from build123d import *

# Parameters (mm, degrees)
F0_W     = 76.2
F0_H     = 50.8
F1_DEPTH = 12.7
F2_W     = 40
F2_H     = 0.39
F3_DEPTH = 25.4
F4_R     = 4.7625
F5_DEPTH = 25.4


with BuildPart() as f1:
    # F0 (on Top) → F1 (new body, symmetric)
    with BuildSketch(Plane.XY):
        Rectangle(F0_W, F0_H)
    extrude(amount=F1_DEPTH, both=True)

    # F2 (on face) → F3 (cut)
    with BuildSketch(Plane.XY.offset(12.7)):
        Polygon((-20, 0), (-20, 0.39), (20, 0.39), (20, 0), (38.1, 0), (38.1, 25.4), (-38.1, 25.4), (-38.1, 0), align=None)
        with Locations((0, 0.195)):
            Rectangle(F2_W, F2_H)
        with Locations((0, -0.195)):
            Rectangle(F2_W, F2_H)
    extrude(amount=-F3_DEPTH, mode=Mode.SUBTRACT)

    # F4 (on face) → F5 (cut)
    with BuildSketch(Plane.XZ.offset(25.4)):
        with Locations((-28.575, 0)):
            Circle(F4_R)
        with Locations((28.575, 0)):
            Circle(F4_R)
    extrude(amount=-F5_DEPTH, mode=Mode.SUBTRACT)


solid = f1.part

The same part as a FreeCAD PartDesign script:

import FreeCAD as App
import Part
import Sketcher
Q = App.Units.Quantity

doc = App.newDocument("Part")
body = doc.addObject("PartDesign::Body", "Body")

sketch1 = body.newObject("Sketcher::SketchObject", "Sketch")
sketch1.AttachmentSupport = (doc.getObject("XY_Plane"), [""])
sketch1.MapMode = "FlatFace"
sketch1.addGeometry([
    Part.LineSegment(App.Vector(-38, 25, 0), App.Vector(-38, -25, 0)),
    Part.LineSegment(App.Vector(-38, -25, 0), App.Vector(38, -25, 0)),
    Part.LineSegment(App.Vector(38, -25, 0), App.Vector(38, 25, 0)),
    Part.LineSegment(App.Vector(38, 25, 0), App.Vector(-38, 25, 0)),
], False)
sketch1.addConstraint([
    Sketcher.Constraint("Coincident", 0, 2, 1, 1),
    Sketcher.Constraint("Coincident", 1, 2, 2, 1),
    Sketcher.Constraint("Coincident", 2, 2, 3, 1),
    Sketcher.Constraint("Coincident", 3, 2, 0, 1),
    Sketcher.Constraint("Vertical", 0),
    Sketcher.Constraint("Horizontal", 1),
    Sketcher.Constraint("Vertical", 2),
    Sketcher.Constraint("Horizontal", 3),
    Sketcher.Constraint("Symmetric", 0, 2, 2, 2, -1, 1),
    Sketcher.Constraint("DistanceX", 1, 1, 1, 2, Q("3 in")),
    Sketcher.Constraint("DistanceY", 0, 2, 0, 1, Q("2 in")),
])
pad1 = body.newObject("PartDesign::Pad", "Pad")
pad1.Profile = sketch1
pad1.Length = Q("1 in")
pad1.Midplane = True

sketch2 = body.newObject("Sketcher::SketchObject", "Sketch001")
sketch2.AttachmentSupport = (doc.getObject("XY_Plane"), [""])
sketch2.MapMode = "FlatFace"
sketch2.AttachmentOffset = App.Placement(App.Vector(0, 0, 0.5 * 25.4), App.Rotation())
sketch2.addGeometry([
    Part.LineSegment(App.Vector(38.1, 0, 0), App.Vector(38.1, 25.4, 0)),
    Part.LineSegment(App.Vector(38.1, 25.4, 0), App.Vector(-38.1, 25.4, 0)),
    Part.LineSegment(App.Vector(-38.1, 25.4, 0), App.Vector(-38.1, 0, 0)),
    Part.LineSegment(App.Vector(-38.1, 0, 0), App.Vector(-20, 0, 0)),
    Part.LineSegment(App.Vector(-20, 0, 0), App.Vector(-20, -0.39, 0)),
    Part.LineSegment(App.Vector(-20, -0.39, 0), App.Vector(20, -0.39, 0)),
    Part.LineSegment(App.Vector(20, -0.39, 0), App.Vector(20, 0, 0)),
    Part.LineSegment(App.Vector(20, 0, 0), App.Vector(38.1, 0, 0)),
], False)
sketch2.addConstraint([
    Sketcher.Constraint("Coincident", 0, 2, 1, 1),
    Sketcher.Constraint("Coincident", 1, 2, 2, 1),
    Sketcher.Constraint("Coincident", 2, 2, 3, 1),
    Sketcher.Constraint("Coincident", 3, 2, 4, 1),
    Sketcher.Constraint("Coincident", 4, 2, 5, 1),
    Sketcher.Constraint("Coincident", 5, 2, 6, 1),
    Sketcher.Constraint("Coincident", 6, 2, 7, 1),
    Sketcher.Constraint("Coincident", 7, 2, 0, 1),
    Sketcher.Constraint("Vertical", 0),
    Sketcher.Constraint("Horizontal", 1),
    Sketcher.Constraint("Vertical", 2),
    Sketcher.Constraint("Horizontal", 3),
    Sketcher.Constraint("Vertical", 4),
    Sketcher.Constraint("Horizontal", 5),
    Sketcher.Constraint("Vertical", 6),
    Sketcher.Constraint("Horizontal", 7),
    Sketcher.Constraint("Symmetric", 3, 2, 6, 2, -1, 1),
    Sketcher.Constraint("Symmetric", 2, 2, 7, 2, -2),
    Sketcher.Constraint("DistanceX", 1, 2, 1, 1, Q("3 in")),
    Sketcher.Constraint("DistanceY", 0, 1, 0, 2, Q("1 in")),
    Sketcher.Constraint("DistanceX", 3, 1, 3, 2, Q("18.1 mm")),
    Sketcher.Constraint("DistanceY", 4, 2, 4, 1, Q("0.39 mm")),
])
pocket1 = body.newObject("PartDesign::Pocket", "Pocket")
pocket1.Profile = sketch2
pocket1.Length = Q("1 in")

sketch3 = body.newObject("Sketcher::SketchObject", "Sketch002")
sketch3.AttachmentSupport = (doc.getObject("XZ_Plane"), [""])
sketch3.MapMode = "FlatFace"
sketch3.AttachmentOffset = App.Placement(App.Vector(0, 0, 1 * 25.4), App.Rotation())
sketch3.addGeometry([
    Part.Circle(App.Vector(-28.6, 0, 0), App.Vector(0, 0, 1), 4.8),
    Part.Circle(App.Vector(28.6, 0, 0), App.Vector(0, 0, 1), 4.8),
], False)
sketch3.addConstraint([
    Sketcher.Constraint("Equal", 0, 1),
    Sketcher.Constraint("Symmetric", 0, 3, 1, 3, -1, 1),
    Sketcher.Constraint("PointOnObject", 0, 3, -1),
    Sketcher.Constraint("Diameter", 0, Q("0.375 in")),
    Sketcher.Constraint("DistanceX", 0, 3, 1, 3, Q("2.25 in")),
])
pocket2 = body.newObject("PartDesign::Pocket", "Pocket001")
pocket2.Profile = sketch3
pocket2.Length = Q("1 in")

doc.recompute()
